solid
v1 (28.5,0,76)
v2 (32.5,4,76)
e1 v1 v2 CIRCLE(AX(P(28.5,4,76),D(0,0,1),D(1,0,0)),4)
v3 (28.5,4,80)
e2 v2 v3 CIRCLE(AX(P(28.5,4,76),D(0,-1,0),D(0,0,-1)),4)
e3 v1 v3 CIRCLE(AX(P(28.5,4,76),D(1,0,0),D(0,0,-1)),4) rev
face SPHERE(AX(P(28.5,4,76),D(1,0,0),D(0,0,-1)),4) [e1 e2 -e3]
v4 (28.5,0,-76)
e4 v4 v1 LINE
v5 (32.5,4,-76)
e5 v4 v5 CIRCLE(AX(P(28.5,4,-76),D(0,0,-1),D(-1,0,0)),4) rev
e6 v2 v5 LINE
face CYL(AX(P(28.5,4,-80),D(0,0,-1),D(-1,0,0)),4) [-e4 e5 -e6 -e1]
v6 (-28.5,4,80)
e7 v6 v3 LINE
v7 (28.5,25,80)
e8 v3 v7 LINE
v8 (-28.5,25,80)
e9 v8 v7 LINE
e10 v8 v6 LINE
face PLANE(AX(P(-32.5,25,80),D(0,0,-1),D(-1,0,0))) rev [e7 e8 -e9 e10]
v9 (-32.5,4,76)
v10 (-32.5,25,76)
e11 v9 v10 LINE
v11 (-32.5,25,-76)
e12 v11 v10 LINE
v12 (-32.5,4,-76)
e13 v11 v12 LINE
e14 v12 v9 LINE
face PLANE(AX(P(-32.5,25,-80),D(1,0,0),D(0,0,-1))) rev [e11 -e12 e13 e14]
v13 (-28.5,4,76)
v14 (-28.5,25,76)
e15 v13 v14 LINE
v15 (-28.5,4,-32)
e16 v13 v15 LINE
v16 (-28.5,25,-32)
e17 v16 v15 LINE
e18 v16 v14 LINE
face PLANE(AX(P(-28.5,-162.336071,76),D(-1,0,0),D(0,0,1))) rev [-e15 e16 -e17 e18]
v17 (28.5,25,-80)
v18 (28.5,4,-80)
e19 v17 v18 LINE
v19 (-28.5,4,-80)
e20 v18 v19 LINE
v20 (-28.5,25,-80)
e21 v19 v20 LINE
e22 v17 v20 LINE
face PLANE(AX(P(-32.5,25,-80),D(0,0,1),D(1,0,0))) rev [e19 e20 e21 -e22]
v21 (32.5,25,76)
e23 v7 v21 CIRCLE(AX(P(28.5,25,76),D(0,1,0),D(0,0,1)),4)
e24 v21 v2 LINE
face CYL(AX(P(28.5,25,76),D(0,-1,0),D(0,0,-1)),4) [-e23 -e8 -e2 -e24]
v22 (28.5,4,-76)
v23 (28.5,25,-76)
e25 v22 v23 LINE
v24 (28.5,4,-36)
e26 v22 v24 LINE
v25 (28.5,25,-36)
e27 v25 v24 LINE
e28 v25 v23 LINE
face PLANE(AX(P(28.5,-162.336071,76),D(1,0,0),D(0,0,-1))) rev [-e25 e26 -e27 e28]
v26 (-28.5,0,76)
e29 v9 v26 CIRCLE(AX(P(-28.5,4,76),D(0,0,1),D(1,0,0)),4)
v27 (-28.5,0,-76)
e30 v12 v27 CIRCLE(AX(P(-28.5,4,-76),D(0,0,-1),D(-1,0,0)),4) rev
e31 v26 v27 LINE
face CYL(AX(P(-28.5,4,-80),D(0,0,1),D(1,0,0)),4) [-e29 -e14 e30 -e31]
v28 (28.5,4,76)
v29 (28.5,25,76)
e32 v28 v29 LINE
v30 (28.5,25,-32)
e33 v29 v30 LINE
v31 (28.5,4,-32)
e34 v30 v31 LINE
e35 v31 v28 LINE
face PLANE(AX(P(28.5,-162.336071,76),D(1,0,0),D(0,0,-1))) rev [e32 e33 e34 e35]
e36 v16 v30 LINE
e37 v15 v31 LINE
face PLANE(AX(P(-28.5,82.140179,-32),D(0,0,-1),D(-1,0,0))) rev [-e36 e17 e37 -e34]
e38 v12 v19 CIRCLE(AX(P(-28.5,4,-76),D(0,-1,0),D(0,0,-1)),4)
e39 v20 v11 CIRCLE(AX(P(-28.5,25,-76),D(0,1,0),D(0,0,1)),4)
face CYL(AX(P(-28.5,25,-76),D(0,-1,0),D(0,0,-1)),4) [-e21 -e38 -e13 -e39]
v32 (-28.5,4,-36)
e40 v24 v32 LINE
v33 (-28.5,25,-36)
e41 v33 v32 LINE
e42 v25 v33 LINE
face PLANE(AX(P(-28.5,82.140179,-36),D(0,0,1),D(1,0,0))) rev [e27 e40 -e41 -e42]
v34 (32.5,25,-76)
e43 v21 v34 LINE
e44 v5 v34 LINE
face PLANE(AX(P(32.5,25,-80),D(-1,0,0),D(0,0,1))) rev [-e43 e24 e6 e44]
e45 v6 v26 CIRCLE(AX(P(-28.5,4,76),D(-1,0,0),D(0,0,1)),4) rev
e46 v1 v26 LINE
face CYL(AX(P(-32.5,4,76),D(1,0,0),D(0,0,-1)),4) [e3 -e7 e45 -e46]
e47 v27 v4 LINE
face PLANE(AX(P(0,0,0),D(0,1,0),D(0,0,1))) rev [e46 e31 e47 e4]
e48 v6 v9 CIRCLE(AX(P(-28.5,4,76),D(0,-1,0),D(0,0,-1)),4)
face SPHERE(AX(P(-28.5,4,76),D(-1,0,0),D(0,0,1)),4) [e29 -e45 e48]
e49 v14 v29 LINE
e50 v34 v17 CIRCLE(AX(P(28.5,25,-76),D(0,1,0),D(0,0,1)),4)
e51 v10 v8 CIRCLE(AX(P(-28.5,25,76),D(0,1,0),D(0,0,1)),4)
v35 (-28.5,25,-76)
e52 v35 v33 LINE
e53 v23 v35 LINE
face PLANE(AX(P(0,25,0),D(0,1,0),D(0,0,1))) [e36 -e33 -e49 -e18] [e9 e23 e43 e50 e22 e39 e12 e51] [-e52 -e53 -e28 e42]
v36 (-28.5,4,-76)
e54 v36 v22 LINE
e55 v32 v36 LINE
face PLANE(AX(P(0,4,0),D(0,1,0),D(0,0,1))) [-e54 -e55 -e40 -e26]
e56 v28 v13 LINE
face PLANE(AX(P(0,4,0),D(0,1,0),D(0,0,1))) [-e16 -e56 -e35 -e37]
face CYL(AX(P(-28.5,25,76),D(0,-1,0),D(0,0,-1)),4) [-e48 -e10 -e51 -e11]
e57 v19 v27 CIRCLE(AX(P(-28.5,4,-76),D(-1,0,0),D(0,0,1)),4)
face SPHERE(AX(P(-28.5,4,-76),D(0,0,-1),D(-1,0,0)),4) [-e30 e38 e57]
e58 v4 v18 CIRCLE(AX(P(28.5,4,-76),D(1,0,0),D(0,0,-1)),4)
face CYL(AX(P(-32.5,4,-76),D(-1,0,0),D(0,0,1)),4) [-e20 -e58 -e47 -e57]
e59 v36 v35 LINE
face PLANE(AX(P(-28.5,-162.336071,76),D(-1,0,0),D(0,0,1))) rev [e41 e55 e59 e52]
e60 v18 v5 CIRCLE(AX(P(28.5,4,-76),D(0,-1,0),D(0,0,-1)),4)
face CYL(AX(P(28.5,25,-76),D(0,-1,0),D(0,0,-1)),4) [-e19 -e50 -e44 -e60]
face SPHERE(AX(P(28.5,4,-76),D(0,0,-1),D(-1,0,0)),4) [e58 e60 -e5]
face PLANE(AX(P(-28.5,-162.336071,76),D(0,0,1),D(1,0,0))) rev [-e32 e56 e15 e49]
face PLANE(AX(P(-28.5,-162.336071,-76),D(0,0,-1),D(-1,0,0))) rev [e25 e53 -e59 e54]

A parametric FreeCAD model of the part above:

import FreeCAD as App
import Part
import Sketcher
from FreeCAD import Vector
Q = App.Units.Quantity


def edges_at(feature, points):
    """Names of the edges that pass closest to the given points."""
    edges = feature.Shape.Edges
    near = lambda p: min(range(len(edges)), key=lambda i: edges[i].distToShape(Part.Vertex(*p))[0])
    return sorted({f"Edge{near(p) + 1}" for p in points})


def add_polygon(sketch, points):
    """Adds a closed chain of lines whose ends are joined by coincident constraints."""
    first, n = sketch.GeometryCount, len(points)
    for a, b in zip(points, points[1:] + points[:1]):
        sketch.addGeometry(Part.LineSegment(App.Vector(*a, 0), App.Vector(*b, 0)), False)
    for i in range(n):
        sketch.addConstraint(Sketcher.Constraint("Coincident", first + i, 2, first + (i + 1) % n, 1))

doc = App.newDocument("Part")
body = doc.addObject("PartDesign::Body", "Body")

# Sketch on XZ plane
sketch1 = body.newObject("Sketcher::SketchObject", "Sketch")
sketch1.AttachmentSupport = (doc.getObject("XZ_Plane"), [""])
sketch1.MapMode = "FlatFace"
add_polygon(sketch1, [(-32, -80), (-32, 80), (32, 80), (32, -80)])  # lines 0-3
sketch1.addConstraint([
    Sketcher.Constraint("Vertical", 0),
    Sketcher.Constraint("Horizontal", 1),
    Sketcher.Constraint("Vertical", 2),
    Sketcher.Constraint("Horizontal", 3),
    Sketcher.Constraint("Symmetric", 0, 2, 2, 2, -1, 1),
    Sketcher.Constraint("DistanceX", 1, 1, 1, 2, Q("65 mm")),
    Sketcher.Constraint("DistanceY", 0, 1, 0, 2, Q("160 mm")),
])
pad1 = body.newObject("PartDesign::Pad", "Pad")
pad1.Profile = sketch1
pad1.Length = 25
pad1.Reversed = True

# Sketch on XZ plane
sketch2 = body.newObject("Sketcher::SketchObject", "Sketch001")
sketch2.AttachmentSupport = (doc.getObject("XZ_Plane"), [""])
sketch2.MapMode = "FlatFace"
sketch2.AttachmentOffset = App.Placement(Vector(0, 0, -25), App.Rotation())
add_polygon(sketch2, [(-28, -76), (-28, 76), (28, 76), (28, -76)])  # lines 0-3
sketch2.addConstraint([
    Sketcher.Constraint("Vertical", 0),
    Sketcher.Constraint("Horizontal", 1),
    Sketcher.Constraint("Vertical", 2),
    Sketcher.Constraint("Horizontal", 3),
    Sketcher.Constraint("Symmetric", 0, 2, 2, 2, -1, 1),
    Sketcher.Constraint("DistanceX", 1, 1, 1, 2, Q("57 mm")),
    Sketcher.Constraint("DistanceY", 0, 1, 0, 2, Q("152 mm")),
])
pocket1 = body.newObject("PartDesign::Pocket", "Pocket")
pocket1.Profile = sketch2
pocket1.Length = 21
pocket1.Reversed = True

# Sketch on XZ plane
sketch3 = body.newObject("Sketcher::SketchObject", "Sketch002")
sketch3.AttachmentSupport = (doc.getObject("XZ_Plane"), [""])
sketch3.MapMode = "FlatFace"
sketch3.AttachmentOffset = App.Placement(Vector(0, 0, -4), App.Rotation())
add_polygon(sketch3, [(-28.5, -36), (-28.5, -32), (28.5, -32), (28.5, -36)])  # lines 0-3
sketch3.addConstraint([
    Sketcher.Constraint("Vertical", 0),
    Sketcher.Constraint("Horizontal", 1),
    Sketcher.Constraint("Vertical", 2),
    Sketcher.Constraint("Horizontal", 3),
    Sketcher.Constraint("DistanceX", 1, 1, 1, 2, Q("57 mm")),
    Sketcher.Constraint("DistanceY", 0, 1, 0, 2, Q("4 mm")),
    Sketcher.Constraint("DistanceY", 0, 2, -1, 1, Q("32 mm")),
    Sketcher.Constraint("DistanceX", 0, 2, -1, 1, Q("28.5 mm")),
])
pad2 = body.newObject("PartDesign::Pad", "Pad001")
pad2.Profile = sketch3
pad2.Length = 21
pad2.Reversed = True
doc.recompute()

fillet = body.newObject("PartDesign::Fillet", "Fillet")
fillet.Base = (pad2, edges_at(pad2, [
    (0, 0, -80),
    (32.5, 0, 0),
    (0, 0, 80),
    (-32.5, 0, 0),
    (-32.5, 12.5, -80),
    (32.5, 12.5, -80),
    (32.5, 12.5, 80),
    (-32.5, 12.5, 80),
]))
fillet.Radius = 4

doc.recompute()
